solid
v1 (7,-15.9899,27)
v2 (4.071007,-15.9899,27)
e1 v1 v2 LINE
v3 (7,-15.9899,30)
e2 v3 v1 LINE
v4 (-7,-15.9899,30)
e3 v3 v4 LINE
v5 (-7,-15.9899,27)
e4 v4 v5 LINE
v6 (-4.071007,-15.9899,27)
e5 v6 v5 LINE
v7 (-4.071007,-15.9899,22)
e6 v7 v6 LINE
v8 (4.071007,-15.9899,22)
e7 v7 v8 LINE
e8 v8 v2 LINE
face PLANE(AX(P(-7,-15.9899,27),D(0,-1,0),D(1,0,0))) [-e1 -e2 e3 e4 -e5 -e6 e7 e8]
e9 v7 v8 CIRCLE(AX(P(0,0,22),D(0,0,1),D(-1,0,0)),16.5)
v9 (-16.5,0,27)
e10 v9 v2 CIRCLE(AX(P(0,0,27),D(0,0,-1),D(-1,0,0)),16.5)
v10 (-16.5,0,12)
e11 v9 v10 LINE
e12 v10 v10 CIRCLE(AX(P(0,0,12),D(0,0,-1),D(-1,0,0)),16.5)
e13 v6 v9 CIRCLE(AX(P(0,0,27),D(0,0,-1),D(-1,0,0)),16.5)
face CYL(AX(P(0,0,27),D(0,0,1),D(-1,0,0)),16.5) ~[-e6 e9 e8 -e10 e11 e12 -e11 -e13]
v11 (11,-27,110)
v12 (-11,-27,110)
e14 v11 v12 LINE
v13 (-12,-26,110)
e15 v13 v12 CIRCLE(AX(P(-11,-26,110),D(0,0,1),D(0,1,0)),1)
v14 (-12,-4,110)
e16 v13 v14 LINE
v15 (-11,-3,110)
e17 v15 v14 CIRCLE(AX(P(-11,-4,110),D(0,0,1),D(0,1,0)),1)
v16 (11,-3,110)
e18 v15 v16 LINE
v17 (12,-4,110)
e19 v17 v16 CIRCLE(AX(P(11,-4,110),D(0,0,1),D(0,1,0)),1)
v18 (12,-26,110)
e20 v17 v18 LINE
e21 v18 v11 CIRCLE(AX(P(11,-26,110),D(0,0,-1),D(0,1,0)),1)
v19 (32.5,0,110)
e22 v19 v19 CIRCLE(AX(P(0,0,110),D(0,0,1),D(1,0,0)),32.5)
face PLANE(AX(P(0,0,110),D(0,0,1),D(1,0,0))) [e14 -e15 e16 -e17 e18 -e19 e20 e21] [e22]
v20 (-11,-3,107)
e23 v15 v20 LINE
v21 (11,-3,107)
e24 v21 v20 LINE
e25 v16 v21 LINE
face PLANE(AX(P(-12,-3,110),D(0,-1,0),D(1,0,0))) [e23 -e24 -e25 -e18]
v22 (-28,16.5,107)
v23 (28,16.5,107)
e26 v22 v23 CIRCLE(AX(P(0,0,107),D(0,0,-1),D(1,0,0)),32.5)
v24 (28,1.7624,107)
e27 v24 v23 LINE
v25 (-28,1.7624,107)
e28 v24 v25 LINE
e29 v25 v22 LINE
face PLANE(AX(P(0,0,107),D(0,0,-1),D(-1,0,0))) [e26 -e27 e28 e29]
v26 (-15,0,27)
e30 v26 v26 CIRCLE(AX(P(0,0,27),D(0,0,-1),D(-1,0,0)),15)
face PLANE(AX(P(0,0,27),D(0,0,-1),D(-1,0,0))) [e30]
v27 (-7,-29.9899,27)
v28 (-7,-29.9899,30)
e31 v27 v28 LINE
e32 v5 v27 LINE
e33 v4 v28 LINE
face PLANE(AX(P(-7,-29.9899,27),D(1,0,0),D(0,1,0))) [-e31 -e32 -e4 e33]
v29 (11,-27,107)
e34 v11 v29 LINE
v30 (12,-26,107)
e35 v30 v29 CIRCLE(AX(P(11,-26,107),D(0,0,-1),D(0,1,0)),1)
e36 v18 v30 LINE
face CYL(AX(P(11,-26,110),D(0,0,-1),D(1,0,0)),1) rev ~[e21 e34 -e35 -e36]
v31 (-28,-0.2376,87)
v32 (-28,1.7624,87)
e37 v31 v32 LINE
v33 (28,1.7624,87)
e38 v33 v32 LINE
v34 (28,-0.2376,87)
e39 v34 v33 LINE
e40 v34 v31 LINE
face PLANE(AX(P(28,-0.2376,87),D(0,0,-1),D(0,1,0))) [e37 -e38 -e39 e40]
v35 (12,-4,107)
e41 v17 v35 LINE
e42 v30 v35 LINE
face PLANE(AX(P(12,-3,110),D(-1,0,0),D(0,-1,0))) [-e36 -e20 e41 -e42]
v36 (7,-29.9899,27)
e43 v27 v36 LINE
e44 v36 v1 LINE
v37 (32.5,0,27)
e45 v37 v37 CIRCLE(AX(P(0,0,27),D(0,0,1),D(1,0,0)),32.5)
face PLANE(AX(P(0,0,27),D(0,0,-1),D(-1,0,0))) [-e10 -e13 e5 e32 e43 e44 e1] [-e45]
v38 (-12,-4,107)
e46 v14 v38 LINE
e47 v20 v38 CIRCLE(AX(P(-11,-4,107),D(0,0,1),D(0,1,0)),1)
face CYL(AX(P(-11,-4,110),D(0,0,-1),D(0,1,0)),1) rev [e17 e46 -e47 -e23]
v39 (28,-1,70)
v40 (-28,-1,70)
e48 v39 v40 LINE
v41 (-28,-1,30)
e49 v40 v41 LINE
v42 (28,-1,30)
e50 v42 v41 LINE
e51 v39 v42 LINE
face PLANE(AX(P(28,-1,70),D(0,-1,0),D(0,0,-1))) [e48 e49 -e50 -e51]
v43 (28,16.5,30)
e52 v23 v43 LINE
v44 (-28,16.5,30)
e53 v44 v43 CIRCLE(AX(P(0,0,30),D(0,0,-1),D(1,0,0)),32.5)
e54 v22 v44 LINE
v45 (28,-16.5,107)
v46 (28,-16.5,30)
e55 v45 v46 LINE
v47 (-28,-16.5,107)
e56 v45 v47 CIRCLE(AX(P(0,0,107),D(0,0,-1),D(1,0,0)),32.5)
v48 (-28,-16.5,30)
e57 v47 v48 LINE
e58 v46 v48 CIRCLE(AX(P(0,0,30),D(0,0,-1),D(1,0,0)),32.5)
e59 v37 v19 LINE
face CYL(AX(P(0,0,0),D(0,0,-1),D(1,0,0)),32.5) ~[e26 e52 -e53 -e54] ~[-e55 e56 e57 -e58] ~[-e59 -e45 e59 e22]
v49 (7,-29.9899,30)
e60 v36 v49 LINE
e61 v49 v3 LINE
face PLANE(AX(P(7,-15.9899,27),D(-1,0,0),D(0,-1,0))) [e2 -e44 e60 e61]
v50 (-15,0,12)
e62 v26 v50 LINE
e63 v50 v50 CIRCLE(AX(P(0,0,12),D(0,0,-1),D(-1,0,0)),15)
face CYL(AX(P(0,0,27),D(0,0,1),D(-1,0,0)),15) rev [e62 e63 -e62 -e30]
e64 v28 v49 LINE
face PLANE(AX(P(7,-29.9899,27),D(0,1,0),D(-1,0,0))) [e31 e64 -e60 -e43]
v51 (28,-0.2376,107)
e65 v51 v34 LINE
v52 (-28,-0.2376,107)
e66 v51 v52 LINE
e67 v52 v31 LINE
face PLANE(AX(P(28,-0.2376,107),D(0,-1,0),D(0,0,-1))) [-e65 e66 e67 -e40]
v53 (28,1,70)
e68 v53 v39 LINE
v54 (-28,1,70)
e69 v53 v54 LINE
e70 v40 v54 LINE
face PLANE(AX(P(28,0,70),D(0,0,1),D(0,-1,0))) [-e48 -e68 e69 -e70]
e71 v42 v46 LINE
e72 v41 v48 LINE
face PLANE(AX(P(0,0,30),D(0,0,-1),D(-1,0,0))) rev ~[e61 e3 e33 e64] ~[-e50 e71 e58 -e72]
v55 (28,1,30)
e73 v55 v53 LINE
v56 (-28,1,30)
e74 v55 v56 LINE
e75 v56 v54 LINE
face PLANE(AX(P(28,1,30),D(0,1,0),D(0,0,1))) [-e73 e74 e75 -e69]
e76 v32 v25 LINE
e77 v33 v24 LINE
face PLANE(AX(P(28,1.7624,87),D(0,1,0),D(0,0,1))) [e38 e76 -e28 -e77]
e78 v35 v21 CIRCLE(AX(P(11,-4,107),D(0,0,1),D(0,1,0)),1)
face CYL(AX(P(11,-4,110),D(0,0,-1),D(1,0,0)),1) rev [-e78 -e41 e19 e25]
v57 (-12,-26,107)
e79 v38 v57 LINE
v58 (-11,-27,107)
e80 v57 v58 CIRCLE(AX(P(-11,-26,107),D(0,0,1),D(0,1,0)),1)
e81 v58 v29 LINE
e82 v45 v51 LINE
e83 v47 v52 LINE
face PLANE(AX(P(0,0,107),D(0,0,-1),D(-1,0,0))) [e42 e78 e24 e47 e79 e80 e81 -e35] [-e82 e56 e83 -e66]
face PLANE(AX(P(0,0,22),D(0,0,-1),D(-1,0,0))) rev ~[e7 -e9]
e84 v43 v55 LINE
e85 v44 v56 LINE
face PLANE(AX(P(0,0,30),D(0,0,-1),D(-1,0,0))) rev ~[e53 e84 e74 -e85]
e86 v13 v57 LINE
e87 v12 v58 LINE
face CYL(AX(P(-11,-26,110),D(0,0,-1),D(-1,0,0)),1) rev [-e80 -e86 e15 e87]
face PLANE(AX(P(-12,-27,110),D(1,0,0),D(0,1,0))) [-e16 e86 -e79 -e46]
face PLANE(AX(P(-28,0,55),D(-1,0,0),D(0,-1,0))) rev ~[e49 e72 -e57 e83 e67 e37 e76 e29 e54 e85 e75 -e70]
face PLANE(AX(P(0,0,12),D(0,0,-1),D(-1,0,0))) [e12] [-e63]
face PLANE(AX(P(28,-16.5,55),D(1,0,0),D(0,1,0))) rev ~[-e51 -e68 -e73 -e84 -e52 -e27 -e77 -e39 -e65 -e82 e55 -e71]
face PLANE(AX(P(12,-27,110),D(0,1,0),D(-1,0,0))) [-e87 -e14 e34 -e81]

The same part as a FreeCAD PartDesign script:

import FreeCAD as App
import Part
import Sketcher
from FreeCAD import Vector
Q = App.Units.Quantity


def edges_at(feature, points):
    """Names of the edges that pass closest to the given points."""
    edges = feature.Shape.Edges
    near = lambda p: min(range(len(edges)), key=lambda i: edges[i].distToShape(Part.Vertex(*p))[0])
    return sorted({f"Edge{near(p) + 1}" for p in points})


def add_polygon(sketch, points):
    """Adds a closed chain of lines whose ends are joined by coincident constraints."""
    first, n = sketch.GeometryCount, len(points)
    for a, b in zip(points, points[1:] + points[:1]):
        sketch.addGeometry(Part.LineSegment(App.Vector(*a, 0), App.Vector(*b, 0)), False)
    for i in range(n):
        sketch.addConstraint(Sketcher.Constraint("Coincident", first + i, 2, first + (i + 1) % n, 1))

doc = App.newDocument("Part")
body = doc.addObject("PartDesign::Body", "Body")

# Sketch on XY plane
sketch1 = body.newObject("Sketcher::SketchObject", "Sketch")
sketch1.AttachmentSupport = (doc.getObject("XY_Plane"), [""])
sketch1.MapMode = "FlatFace"
sketch1.addGeometry(Part.Circle(Vector(0, 0, 0), Vector(0, 0, 1), 32.5), False)
sketch1.addConstraint(Sketcher.Constraint("Coincident", 0, 3, -1, 1))
sketch1.addConstraint(Sketcher.Constraint("Diameter", 0, Q("65 mm")))
pad1 = body.newObject("PartDesign::Pad", "Pad")
pad1.Profile = sketch1
pad1.Length = 110

# Sketch on XY plane
sketch2 = body.newObject("Sketcher::SketchObject", "Sketch001")
sketch2.AttachmentSupport = (doc.getObject("XY_Plane"), [""])
sketch2.MapMode = "FlatFace"
sketch2.AttachmentOffset = App.Placement(Vector(0, 0, 55), App.Rotation())
add_polygon(sketch2, [(-28, 35.8328), (28, 35.8328), (28, -35.6443), (-28, -35.6443)])  # lines 0-3
sketch2.addConstraint(Sketcher.Constraint("Horizontal", 0))
sketch2.addConstraint(Sketcher.Constraint("Vertical", 1))
sketch2.addConstraint(Sketcher.Constraint("Horizontal", 2))
sketch2.addConstraint(Sketcher.Constraint("Vertical", 3))
sketch2.addConstraint(Sketcher.Constraint("DistanceX", 0, 1, 0, 2, Q("56 mm")))
sketch2.addConstraint(Sketcher.Constraint("DistanceX", -1, 1, 0, 2, Q("28 mm")))
sketch2.addConstraint(Sketcher.Constraint("DistanceY", 1, 2, 1, 1, Q("71.477 mm")))
sketch2.addConstraint(Sketcher.Constraint("DistanceY", -1, 1, 0, 2, Q("35.8328 mm")))
pocket1 = body.newObject("PartDesign::Pocket", "Pocket")
pocket1.Profile = sketch2
pocket1.Type = "TwoLengths"
pocket1.Length = 25
pocket1.Length2 = 52

# Sketch on XY plane
sketch3 = body.newObject("Sketcher::SketchObject", "Sketch002")
sketch3.AttachmentSupport = (doc.getObject("XY_Plane"), [""])
sketch3.MapMode = "FlatFace"
sketch3.addGeometry(Part.Circle(Vector(0, 0, 0), Vector(0, 0, 1), 32.5), False)
sketch3.addConstraint(Sketcher.Constraint("Coincident", 0, 3, -1, 1))
sketch3.addConstraint(Sketcher.Constraint("Diameter", 0, Q("65 mm")))
pocket2 = body.newObject("PartDesign::Pocket", "Pocket001")
pocket2.Profile = sketch3
pocket2.Length = 27
pocket2.Reversed = True

# Sketch on XY plane
sketch4 = body.newObject("Sketcher::SketchObject", "Sketch003")
sketch4.AttachmentSupport = (doc.getObject("XY_Plane"), [""])
sketch4.MapMode = "FlatFace"
sketch4.AttachmentOffset = App.Placement(Vector(0, 0, 27), App.Rotation())
sketch4.addGeometry(Part.Circle(Vector(0, 0, 0), Vector(0, 0, 1), 16.5), False)
sketch4.addGeometry(Part.Circle(Vector(0, 0, 0), Vector(0, 0, 1), 15), False)
sketch4.addConstraint(Sketcher.Constraint("Coincident", 0, 3, -1, 1))
sketch4.addConstraint(Sketcher.Constraint("Coincident", 1, 3, -1, 1))
sketch4.addConstraint(Sketcher.Constraint("Diameter", 0, Q("33 mm")))
sketch4.addConstraint(Sketcher.Constraint("Diameter", 1, Q("30 mm")))
pad2 = body.newObject("PartDesign::Pad", "Pad001")
pad2.Profile = sketch4
pad2.Length = 15
pad2.Reversed = True

# Sketch on XY plane
sketch5 = body.newObject("Sketcher::SketchObject", "Sketch004")
sketch5.AttachmentSupport = (doc.getObject("XY_Plane"), [""])
sketch5.MapMode = "FlatFace"
sketch5.AttachmentOffset = App.Placement(Vector(0, 0, 27), App.Rotation())
add_polygon(sketch5, [(-7, -29.9899), (-7, -15.9899), (7, -15.9899), (7, -29.9899)])  # lines 0-3
sketch5.addConstraint(Sketcher.Constraint("Vertical", 0))
sketch5.addConstraint(Sketcher.Constraint("Horizontal", 1))
sketch5.addConstraint(Sketcher.Constraint("Vertical", 2))
sketch5.addConstraint(Sketcher.Constraint("Horizontal", 3))
sketch5.addConstraint(Sketcher.Constraint("Equal", 3, 0))
sketch5.addConstraint(Sketcher.Constraint("DistanceX", 1, 1, 1, 2, Q("14 mm")))
sketch5.addConstraint(Sketcher.Constraint("DistanceX", 0, 2, -1, 1, Q("7 mm")))
sketch5.addConstraint(Sketcher.Constraint("DistanceY", 0, 2, -1, 1, Q("15.99 mm")))
pocket3 = body.newObject("PartDesign::Pocket", "Pocket002")
pocket3.Profile = sketch5
pocket3.Type = "TwoLengths"
pocket3.Length = 5
pocket3.Length2 = 7.5

# Sketch on YZ plane
sketch6 = body.newObject("Sketcher::SketchObject", "Sketch005")
sketch6.AttachmentSupport = (doc.getObject("YZ_Plane"), [""])
sketch6.MapMode = "FlatFace"
sketch6.AttachmentOffset = App.Placement(Vector(0, 0, 28), App.Rotation())
add_polygon(sketch6, [(-1, 30), (-1, 70), (1, 70), (1, 30)])  # lines 0-3
add_polygon(sketch6, [(-0.2376, 87), (-0.2376, 107), (1.7624, 107), (1.7624, 87)])  # lines 4-7
sketch6.addConstraint(Sketcher.Constraint("Vertical", 0))
sketch6.addConstraint(Sketcher.Constraint("Horizontal", 1))
sketch6.addConstraint(Sketcher.Constraint("Vertical", 2))
sketch6.addConstraint(Sketcher.Constraint("Horizontal", 3))
sketch6.addConstraint(Sketcher.Constraint("Vertical", 4))
sketch6.addConstraint(Sketcher.Constraint("Horizontal", 5))
sketch6.addConstraint(Sketcher.Constraint("Vertical", 6))
sketch6.addConstraint(Sketcher.Constraint("Horizontal", 7))
sketch6.addConstraint(Sketcher.Constraint("Equal", 3, 5))
sketch6.addConstraint(Sketcher.Constraint("DistanceX", 1, 1, 1, 2, Q("2 mm")))
sketch6.addConstraint(Sketcher.Constraint("DistanceY", 0, 1, 0, 2, Q("40 mm")))
sketch6.addConstraint(Sketcher.Constraint("DistanceY", 4, 1, 4, 2, Q("20 mm")))
sketch6.addConstraint(Sketcher.Constraint("DistanceX", 0, 2, -1, 1, Q("1 mm")))
sketch6.addConstraint(Sketcher.Constraint("DistanceY", -1, 1, 0, 2, Q("70 mm")))
sketch6.addConstraint(Sketcher.Constraint("DistanceY", -1, 1, 4, 2, Q("107 mm")))
sketch6.addConstraint(Sketcher.Constraint("DistanceX", 4, 2, -1, 1, Q("0.2376 mm")))
pad3 = body.newObject("PartDesign::Pad", "Pad002")
pad3.Profile = sketch6
pad3.Length = 56
pad3.Reversed = True

# Sketch on XY plane
sketch7 = body.newObject("Sketcher::SketchObject", "Sketch006")
sketch7.AttachmentSupport = (doc.getObject("XY_Plane"), [""])
sketch7.MapMode = "FlatFace"
sketch7.AttachmentOffset = App.Placement(Vector(0, 0, 110), App.Rotation())
add_polygon(sketch7, [(-12, -27), (12, -27), (12, -3), (-12, -3)])  # lines 0-3
sketch7.addConstraint(Sketcher.Constraint("Horizontal", 0))
sketch7.addConstraint(Sketcher.Constraint("Vertical", 1))
sketch7.addConstraint(Sketcher.Constraint("Horizontal", 2))
sketch7.addConstraint(Sketcher.Constraint("Vertical", 3))
sketch7.addConstraint(Sketcher.Constraint("Equal", 2, 1))
sketch7.addConstraint(Sketcher.Constraint("DistanceX", 0, 1, 0, 2, Q("24 mm")))
sketch7.addConstraint(Sketcher.Constraint("DistanceX", -1, 1, 0, 2, Q("12 mm")))
sketch7.addConstraint(Sketcher.Constraint("DistanceY", 0, 2, -1, 1, Q("27 mm")))
pocket4 = body.newObject("PartDesign::Pocket", "Pocket003")
pocket4.Profile = sketch7
pocket4.Length = 56
doc.recompute()

fillet = body.newObject("PartDesign::Fillet", "Fillet")
fillet.Base = (pocket4, edges_at(pocket4, [
    (12, -27, 108.5),
    (-12, -27, 108.5),
    (12, -3, 108.5),
    (-12, -3, 108.5),
]))
fillet.Radius = 1

doc.recompute()
